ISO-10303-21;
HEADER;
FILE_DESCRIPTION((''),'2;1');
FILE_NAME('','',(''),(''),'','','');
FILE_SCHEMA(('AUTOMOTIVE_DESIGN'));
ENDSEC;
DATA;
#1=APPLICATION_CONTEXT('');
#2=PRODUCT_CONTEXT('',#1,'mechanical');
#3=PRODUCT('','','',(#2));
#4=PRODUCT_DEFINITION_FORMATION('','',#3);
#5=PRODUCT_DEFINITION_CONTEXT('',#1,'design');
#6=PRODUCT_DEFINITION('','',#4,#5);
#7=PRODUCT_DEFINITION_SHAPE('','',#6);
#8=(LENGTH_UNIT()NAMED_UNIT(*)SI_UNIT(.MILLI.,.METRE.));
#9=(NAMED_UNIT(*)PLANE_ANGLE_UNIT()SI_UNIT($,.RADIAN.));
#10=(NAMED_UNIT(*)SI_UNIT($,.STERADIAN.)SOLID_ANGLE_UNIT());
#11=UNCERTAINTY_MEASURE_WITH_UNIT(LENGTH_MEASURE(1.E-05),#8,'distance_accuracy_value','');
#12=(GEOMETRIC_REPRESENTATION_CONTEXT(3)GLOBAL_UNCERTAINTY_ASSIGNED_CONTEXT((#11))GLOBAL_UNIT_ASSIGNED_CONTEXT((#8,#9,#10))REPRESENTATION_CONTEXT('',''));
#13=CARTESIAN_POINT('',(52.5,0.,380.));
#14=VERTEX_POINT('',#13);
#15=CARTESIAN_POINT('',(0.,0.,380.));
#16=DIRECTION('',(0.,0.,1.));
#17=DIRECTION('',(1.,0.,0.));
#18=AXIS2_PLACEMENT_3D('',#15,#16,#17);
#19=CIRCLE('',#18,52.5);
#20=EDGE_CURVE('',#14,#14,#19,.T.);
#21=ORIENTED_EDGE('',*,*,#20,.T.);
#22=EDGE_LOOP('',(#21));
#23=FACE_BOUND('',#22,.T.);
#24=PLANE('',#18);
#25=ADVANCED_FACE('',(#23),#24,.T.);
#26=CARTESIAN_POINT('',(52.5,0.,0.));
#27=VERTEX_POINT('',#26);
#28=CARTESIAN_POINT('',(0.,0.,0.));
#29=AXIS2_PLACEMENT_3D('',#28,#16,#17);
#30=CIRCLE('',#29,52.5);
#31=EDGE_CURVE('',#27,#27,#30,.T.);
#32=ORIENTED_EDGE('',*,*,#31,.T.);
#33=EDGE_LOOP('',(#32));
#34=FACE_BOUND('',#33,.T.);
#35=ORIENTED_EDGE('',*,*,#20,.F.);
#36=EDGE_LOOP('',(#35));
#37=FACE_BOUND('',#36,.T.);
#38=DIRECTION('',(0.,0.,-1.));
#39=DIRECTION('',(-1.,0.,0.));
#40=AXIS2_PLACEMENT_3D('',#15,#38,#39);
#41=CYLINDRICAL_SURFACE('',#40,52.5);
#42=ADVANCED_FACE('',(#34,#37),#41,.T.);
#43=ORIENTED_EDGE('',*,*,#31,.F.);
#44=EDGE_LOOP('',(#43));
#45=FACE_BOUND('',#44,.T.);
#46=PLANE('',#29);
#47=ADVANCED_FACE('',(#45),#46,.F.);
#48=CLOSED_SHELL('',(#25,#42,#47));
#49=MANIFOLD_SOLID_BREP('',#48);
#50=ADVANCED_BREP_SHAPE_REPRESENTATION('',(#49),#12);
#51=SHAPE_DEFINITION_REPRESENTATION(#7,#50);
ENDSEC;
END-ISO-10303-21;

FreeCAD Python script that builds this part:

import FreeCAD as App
import Part
import Sketcher
Q = App.Units.Quantity

doc = App.newDocument("Part")
body = doc.addObject("PartDesign::Body", "Body")

# Sketch on XY plane
sketch1 = doc.addObject("Sketcher::SketchObject", "Sketch")
body.addObject(sketch1)
sketch1.AttachmentSupport = (doc.XY_Plane, [""])
sketch1.MapMode = "FlatFace"
sketch1.addGeometry(Part.Circle(App.Vector(0, 0, 0), App.Vector(0, 0, 1), 52), False)
sketch1.addConstraint(Sketcher.Constraint("Coincident", 0, 3, -1, 1))
sketch1.addConstraint(Sketcher.Constraint("Diameter", 0, Q("105 mm")))
pad1 = doc.addObject("PartDesign::Pad", "Pad")
body.addObject(pad1)
pad1.Profile = sketch1
pad1.Length = 380

doc.recompute()
